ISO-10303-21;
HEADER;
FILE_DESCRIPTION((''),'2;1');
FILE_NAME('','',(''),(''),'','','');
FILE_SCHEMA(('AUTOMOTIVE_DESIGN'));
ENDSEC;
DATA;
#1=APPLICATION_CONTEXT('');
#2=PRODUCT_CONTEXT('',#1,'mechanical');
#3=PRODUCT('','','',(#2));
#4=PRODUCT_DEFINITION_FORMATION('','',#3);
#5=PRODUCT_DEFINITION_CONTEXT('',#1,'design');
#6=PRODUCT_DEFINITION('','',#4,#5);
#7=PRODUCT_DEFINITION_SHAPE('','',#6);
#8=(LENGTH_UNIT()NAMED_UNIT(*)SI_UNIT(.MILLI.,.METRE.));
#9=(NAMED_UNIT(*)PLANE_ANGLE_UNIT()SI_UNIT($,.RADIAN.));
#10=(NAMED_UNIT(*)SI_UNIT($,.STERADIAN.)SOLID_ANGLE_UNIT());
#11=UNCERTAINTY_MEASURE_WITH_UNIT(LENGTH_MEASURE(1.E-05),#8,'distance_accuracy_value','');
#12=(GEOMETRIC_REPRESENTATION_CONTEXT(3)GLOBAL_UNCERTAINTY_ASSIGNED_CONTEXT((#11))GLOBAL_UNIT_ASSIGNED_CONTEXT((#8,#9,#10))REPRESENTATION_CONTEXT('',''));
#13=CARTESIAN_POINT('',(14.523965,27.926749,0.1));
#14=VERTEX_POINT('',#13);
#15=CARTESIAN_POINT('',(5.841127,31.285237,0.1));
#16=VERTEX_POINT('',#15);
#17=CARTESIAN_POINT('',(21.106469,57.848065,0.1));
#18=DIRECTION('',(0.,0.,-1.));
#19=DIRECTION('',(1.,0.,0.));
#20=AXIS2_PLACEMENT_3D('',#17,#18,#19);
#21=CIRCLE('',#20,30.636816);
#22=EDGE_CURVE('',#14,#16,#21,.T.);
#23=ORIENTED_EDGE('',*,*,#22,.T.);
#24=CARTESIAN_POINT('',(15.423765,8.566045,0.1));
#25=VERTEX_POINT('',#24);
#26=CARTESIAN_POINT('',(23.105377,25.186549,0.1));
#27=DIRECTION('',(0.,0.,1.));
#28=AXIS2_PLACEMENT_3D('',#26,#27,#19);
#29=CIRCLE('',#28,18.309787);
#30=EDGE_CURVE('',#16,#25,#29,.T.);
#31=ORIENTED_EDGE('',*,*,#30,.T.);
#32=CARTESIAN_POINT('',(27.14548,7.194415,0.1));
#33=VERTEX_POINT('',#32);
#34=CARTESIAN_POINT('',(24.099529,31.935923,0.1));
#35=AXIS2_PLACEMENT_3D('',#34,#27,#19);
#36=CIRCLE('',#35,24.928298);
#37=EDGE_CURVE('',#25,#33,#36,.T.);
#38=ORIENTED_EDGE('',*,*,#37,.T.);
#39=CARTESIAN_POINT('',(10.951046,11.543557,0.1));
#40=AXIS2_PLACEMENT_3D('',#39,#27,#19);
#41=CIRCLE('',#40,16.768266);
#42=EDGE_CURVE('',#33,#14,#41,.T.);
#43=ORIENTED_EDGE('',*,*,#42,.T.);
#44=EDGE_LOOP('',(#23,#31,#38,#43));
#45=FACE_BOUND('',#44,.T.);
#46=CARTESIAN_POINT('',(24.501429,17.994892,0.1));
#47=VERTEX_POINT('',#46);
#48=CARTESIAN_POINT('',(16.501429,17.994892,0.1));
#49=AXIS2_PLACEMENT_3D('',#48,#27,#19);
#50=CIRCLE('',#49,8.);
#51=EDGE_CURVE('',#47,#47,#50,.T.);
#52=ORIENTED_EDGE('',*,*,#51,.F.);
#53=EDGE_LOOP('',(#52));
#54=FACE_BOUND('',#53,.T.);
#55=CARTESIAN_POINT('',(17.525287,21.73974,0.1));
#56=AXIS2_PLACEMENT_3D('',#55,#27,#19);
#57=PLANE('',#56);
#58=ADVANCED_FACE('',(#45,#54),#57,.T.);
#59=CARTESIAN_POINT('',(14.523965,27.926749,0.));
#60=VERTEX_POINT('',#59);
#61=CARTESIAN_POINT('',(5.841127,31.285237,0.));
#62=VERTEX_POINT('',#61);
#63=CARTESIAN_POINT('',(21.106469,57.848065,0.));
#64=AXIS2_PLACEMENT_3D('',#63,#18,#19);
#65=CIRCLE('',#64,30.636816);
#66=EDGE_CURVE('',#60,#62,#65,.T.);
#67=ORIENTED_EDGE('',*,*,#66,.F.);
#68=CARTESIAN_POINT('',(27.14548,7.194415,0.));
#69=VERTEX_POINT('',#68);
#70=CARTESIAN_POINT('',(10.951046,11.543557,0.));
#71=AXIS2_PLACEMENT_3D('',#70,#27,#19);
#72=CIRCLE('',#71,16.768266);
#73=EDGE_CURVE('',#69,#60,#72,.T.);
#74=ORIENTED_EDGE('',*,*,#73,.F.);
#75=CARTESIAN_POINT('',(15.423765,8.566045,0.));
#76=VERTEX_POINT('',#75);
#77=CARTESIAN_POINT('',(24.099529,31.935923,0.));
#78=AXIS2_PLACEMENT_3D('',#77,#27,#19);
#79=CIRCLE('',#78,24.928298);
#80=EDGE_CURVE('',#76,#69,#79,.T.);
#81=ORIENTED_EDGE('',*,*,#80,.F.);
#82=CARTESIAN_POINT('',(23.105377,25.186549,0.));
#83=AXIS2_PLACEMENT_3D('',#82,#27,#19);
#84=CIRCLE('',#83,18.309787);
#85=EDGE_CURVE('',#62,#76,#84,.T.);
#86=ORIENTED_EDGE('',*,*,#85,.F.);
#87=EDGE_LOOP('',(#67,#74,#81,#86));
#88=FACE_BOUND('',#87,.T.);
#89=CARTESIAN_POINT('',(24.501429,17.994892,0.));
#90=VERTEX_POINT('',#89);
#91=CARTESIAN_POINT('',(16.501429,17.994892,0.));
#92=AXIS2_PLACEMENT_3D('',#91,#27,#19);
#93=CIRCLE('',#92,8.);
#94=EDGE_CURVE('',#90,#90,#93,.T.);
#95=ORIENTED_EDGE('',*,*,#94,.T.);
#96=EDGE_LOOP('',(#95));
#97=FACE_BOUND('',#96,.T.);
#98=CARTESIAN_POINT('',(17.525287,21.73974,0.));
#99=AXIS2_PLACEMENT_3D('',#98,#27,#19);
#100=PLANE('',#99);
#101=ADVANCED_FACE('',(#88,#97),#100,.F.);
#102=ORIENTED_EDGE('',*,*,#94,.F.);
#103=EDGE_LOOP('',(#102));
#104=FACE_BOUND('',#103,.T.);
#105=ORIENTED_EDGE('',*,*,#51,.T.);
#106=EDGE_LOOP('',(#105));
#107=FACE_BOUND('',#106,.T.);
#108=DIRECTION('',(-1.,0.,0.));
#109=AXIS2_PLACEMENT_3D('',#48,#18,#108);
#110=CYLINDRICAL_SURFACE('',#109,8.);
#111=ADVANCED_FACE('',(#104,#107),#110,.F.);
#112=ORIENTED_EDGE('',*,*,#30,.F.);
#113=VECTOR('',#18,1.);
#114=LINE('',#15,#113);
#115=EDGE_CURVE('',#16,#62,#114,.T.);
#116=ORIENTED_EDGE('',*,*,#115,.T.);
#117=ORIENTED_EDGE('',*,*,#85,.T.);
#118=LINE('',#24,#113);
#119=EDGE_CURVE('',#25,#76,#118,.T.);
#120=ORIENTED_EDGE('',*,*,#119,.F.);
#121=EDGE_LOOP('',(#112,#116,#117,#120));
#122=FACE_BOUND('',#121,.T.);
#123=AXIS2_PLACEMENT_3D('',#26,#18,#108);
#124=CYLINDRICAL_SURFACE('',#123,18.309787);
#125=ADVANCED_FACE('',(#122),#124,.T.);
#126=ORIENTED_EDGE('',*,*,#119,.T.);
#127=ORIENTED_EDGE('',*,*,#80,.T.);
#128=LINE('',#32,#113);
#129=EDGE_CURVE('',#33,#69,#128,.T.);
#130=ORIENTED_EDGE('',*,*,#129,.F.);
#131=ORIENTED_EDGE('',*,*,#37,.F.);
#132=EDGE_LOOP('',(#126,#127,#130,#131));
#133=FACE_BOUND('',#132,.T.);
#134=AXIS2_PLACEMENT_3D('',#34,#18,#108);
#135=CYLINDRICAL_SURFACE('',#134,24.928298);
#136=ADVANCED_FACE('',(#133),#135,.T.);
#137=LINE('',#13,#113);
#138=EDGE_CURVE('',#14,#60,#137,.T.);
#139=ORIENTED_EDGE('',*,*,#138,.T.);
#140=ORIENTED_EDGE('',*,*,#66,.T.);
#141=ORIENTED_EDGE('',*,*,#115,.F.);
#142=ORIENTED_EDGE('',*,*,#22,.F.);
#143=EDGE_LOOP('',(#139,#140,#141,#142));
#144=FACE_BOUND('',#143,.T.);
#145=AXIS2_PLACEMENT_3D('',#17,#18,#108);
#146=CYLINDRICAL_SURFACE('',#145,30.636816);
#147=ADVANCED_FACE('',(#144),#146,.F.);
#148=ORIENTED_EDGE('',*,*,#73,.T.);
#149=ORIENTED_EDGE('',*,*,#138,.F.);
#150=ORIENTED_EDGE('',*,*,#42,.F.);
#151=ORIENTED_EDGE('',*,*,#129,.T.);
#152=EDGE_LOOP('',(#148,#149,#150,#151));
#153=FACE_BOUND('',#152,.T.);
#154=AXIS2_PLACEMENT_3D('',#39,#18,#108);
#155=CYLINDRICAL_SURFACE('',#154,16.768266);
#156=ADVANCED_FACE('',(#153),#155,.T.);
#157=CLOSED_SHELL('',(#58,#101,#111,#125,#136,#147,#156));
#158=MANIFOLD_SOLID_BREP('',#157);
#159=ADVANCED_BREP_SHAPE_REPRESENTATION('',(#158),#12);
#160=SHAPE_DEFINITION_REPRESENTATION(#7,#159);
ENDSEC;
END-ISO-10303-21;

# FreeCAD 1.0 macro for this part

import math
import FreeCAD as App
import Part
import Sketcher

V = App.Vector
Q = App.Units.Quantity

doc = App.newDocument("Part")
params = doc.addObject("Spreadsheet::Sheet", "Params")
for row, (alias, value) in enumerate([
    ("sketch1_diameter", "16 mm"),
    ("pad1_length", "0.1 mm"),
], start=1):
    params.set(f"A{row}", alias)
    params.set(f"B{row}", "=" + value)
    params.setAlias(f"B{row}", alias)

body = doc.addObject("PartDesign::Body", "Body")

sketch1 = body.newObject("Sketcher::SketchObject", "Sketch")
sketch1.AttachmentSupport = (doc.getObject("XY_Plane"), [""])
sketch1.MapMode = "FlatFace"
sketch1.addGeometry([
    Part.ArcOfCircle(Part.Circle(V(11, 12, 0), V(0, 0, 1), 17), math.radians(-15), math.radians(78)),
    Part.ArcOfCircle(Part.Circle(V(21, 58, 0), V(0, 0, 1), 31), math.radians(-119.89), math.radians(-102.41)),
    Part.ArcOfCircle(Part.Circle(V(23, 25, 0), V(0, 0, 1), 18), math.radians(161), math.radians(245)),
    Part.ArcOfCircle(Part.Circle(V(24, 32, 0), V(0, 0, 1), 25), math.radians(-110), math.radians(-83)),
    Part.Circle(V(17, 18, 0), V(0, 0, 1), 8),
], False)
sketch1.addConstraint([
    Sketcher.Constraint("Coincident", 0, 2, 1, 2),
    Sketcher.Constraint("Coincident", 1, 1, 2, 1),
    Sketcher.Constraint("Coincident", 2, 2, 3, 1),
    Sketcher.Constraint("Coincident", 3, 2, 0, 1),
    Sketcher.Constraint("Diameter", 4, Q("16 mm")),
    Sketcher.Constraint("Radius", 0, Q("16.768266 mm")),
    Sketcher.Constraint("Radius", 1, Q("30.636815 mm")),
    Sketcher.Constraint("Radius", 2, Q("18.309787 mm")),
    Sketcher.Constraint("Radius", 3, Q("24.928298 mm")),
    Sketcher.Constraint("DistanceX", 4, 3, 3, 3, Q("7.5981 mm")),
    Sketcher.Constraint("DistanceY", 2, 3, 0, 2, Q("2.7402 mm")),
    Sketcher.Constraint("DistanceX", 1, 1, 4, 3, Q("10.660302 mm")),
    Sketcher.Constraint("DistanceX", 0, 2, 2, 2, Q("0.8998 mm")),
    Sketcher.Constraint("DistanceX", -1, 1, 1, 3, Q("21.106469 mm")),
    Sketcher.Constraint("DistanceY", -1, 1, 2, 3, Q("25.186549 mm")),
    Sketcher.Constraint("DistanceX", -1, 1, 3, 3, Q("24.099529 mm")),
    Sketcher.Constraint("DistanceY", -1, 1, 4, 3, Q("17.994892 mm")),
    Sketcher.Constraint("DistanceX", -1, 1, 3, 2, Q("27.14548 mm")),
    Sketcher.Constraint("DistanceX", 0, 3, 2, 3, Q("12.154331 mm")),
])
sketch1.setExpression("Constraints[4]", "Params.sketch1_diameter")
pad1 = body.newObject("PartDesign::Pad", "Pad")
pad1.Profile = sketch1
pad1.setExpression("Length", "Params.pad1_length")

doc.recompute()
